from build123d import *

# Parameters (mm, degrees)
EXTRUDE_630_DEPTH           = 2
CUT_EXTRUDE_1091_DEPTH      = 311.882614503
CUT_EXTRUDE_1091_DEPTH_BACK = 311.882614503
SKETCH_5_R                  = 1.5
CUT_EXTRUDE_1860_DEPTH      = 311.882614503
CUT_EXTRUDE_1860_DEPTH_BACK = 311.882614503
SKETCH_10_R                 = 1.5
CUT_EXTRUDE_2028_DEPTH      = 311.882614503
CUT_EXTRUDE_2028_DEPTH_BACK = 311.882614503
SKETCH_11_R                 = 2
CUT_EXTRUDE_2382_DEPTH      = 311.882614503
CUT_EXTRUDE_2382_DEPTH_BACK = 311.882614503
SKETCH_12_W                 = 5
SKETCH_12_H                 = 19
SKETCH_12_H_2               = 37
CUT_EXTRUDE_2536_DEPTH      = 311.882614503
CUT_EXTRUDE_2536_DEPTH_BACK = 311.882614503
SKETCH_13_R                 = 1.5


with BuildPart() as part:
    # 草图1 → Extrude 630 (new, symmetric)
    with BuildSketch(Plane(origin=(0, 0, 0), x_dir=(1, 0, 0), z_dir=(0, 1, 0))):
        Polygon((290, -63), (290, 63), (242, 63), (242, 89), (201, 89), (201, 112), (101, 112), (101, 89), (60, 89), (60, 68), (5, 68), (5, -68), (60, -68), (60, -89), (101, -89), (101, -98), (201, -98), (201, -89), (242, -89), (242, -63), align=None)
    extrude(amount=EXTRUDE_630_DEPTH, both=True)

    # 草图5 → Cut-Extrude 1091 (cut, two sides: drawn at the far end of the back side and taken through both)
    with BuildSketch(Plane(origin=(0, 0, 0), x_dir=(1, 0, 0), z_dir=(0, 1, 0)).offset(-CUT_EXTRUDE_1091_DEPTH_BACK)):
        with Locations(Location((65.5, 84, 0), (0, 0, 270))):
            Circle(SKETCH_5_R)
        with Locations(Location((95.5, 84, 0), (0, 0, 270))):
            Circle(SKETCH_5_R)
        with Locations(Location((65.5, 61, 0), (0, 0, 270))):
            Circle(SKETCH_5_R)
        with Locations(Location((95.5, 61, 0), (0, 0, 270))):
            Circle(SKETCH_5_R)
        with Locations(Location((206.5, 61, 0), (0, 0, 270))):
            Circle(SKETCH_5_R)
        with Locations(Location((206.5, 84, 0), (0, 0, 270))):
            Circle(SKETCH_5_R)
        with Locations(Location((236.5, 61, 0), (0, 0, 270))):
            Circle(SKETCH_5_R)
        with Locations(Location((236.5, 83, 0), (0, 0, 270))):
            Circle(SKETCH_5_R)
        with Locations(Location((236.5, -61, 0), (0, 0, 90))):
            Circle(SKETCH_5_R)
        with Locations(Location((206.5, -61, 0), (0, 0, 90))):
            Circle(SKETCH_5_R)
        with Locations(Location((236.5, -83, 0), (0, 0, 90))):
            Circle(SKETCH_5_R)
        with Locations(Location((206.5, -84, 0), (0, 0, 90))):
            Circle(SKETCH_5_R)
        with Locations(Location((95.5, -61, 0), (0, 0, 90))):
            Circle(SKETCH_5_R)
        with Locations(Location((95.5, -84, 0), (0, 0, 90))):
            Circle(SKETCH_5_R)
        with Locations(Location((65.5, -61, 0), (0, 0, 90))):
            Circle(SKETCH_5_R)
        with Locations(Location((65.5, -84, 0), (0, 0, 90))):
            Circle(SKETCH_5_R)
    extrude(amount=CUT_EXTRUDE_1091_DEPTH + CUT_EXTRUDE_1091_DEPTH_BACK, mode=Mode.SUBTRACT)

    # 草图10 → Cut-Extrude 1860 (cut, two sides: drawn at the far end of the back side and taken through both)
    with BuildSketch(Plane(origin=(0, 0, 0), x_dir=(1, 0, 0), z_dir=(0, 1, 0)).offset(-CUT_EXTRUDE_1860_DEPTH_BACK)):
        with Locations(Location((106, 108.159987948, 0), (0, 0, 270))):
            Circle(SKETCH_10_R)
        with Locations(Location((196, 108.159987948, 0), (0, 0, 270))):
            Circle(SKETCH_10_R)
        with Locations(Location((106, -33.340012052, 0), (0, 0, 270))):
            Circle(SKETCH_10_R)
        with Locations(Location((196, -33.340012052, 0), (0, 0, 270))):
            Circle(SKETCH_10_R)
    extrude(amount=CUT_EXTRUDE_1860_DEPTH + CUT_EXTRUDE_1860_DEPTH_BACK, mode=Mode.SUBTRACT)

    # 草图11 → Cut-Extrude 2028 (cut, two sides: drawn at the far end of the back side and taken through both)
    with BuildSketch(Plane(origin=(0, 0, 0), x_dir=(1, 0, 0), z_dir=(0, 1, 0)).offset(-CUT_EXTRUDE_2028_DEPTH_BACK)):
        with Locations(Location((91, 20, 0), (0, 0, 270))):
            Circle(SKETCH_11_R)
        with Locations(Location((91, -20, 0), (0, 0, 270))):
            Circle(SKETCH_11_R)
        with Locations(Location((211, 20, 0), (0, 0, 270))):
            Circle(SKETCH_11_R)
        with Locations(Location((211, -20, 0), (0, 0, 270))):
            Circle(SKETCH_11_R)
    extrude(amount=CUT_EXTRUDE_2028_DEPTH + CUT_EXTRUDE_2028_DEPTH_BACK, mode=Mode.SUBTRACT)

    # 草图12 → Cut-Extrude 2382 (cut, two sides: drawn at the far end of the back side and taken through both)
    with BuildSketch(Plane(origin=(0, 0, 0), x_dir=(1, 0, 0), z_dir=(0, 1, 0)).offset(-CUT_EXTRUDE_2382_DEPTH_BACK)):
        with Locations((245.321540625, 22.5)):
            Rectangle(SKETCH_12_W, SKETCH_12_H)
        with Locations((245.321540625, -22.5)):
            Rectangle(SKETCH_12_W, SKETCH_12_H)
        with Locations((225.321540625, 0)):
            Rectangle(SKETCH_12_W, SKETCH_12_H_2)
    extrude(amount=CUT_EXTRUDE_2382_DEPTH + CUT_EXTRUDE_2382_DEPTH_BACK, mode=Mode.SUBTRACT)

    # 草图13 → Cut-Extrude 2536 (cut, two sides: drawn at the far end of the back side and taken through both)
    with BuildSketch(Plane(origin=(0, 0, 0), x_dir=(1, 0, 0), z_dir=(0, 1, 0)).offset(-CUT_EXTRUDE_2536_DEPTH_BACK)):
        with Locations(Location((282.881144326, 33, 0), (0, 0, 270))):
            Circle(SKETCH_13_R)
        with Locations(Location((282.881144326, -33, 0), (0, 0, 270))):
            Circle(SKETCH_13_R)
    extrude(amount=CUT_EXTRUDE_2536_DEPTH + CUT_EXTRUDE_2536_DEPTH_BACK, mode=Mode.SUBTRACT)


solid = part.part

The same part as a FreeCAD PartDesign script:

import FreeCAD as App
import Part
import Sketcher
Q = App.Units.Quantity


def add_polygon(sketch, points):
    """Adds a closed chain of lines whose ends are joined by coincident constraints."""
    first, n = sketch.GeometryCount, len(points)
    for a, b in zip(points, points[1:] + points[:1]):
        sketch.addGeometry(Part.LineSegment(App.Vector(*a, 0), App.Vector(*b, 0)), False)
    for i in range(n):
        sketch.addConstraint(Sketcher.Constraint("Coincident", first + i, 2, first + (i + 1) % n, 1))

doc = App.newDocument("Part")
body = doc.addObject("PartDesign::Body", "Body")

# Sketch on XZ plane
sketch1 = body.newObject("Sketcher::SketchObject", "Sketch")
sketch1.AttachmentSupport = (doc.getObject("XZ_Plane"), [""])
sketch1.MapMode = "FlatFace"
add_polygon(sketch1, [(290, 63), (290, -63), (242, -63), (242, -89), (201, -89), (201, -112), (101, -112), (101, -89), (60, -89), (60, -68), (5, -68), (5, 68), (60, 68), (60, 89), (101, 89), (101, 98), (201, 98), (201, 89), (242, 89), (242, 63)])  # lines 0-19
sketch1.addConstraint(Sketcher.Constraint("Vertical", 0))
sketch1.addConstraint(Sketcher.Constraint("Horizontal", 1))
sketch1.addConstraint(Sketcher.Constraint("Vertical", 2))
sketch1.addConstraint(Sketcher.Constraint("Horizontal", 3))
sketch1.addConstraint(Sketcher.Constraint("Vertical", 4))
sketch1.addConstraint(Sketcher.Constraint("Horizontal", 5))
sketch1.addConstraint(Sketcher.Constraint("Vertical", 6))
sketch1.addConstraint(Sketcher.Constraint("Horizontal", 7))
sketch1.addConstraint(Sketcher.Constraint("Vertical", 8))
sketch1.addConstraint(Sketcher.Constraint("Horizontal", 9))
sketch1.addConstraint(Sketcher.Constraint("Vertical", 10))
sketch1.addConstraint(Sketcher.Constraint("Horizontal", 11))
sketch1.addConstraint(Sketcher.Constraint("Vertical", 12))
sketch1.addConstraint(Sketcher.Constraint("Horizontal", 13))
sketch1.addConstraint(Sketcher.Constraint("Vertical", 14))
sketch1.addConstraint(Sketcher.Constraint("Horizontal", 15))
sketch1.addConstraint(Sketcher.Constraint("Vertical", 16))
sketch1.addConstraint(Sketcher.Constraint("Horizontal", 17))
sketch1.addConstraint(Sketcher.Constraint("Vertical", 18))
sketch1.addConstraint(Sketcher.Constraint("Horizontal", 19))
sketch1.addConstraint(Sketcher.Constraint("Symmetric", 8, 2, 11, 2, -1))
sketch1.addConstraint(Sketcher.Constraint("Symmetric", 6, 2, 13, 2, -1))
sketch1.addConstraint(Sketcher.Constraint("Symmetric", 3, 2, 16, 2, -1))
sketch1.addConstraint(Sketcher.Constraint("Symmetric", 1, 2, 18, 2, -1))
sketch1.addConstraint(Sketcher.Constraint("Horizontal", 3, 2, 6, 2))
sketch1.addConstraint(Sketcher.Constraint("Equal", 3, 7))
sketch1.addConstraint(Sketcher.Constraint("DistanceX", 1, 2, 1, 1, Q("48 mm")))
sketch1.addConstraint(Sketcher.Constraint("DistanceX", 3, 2, 3, 1, Q("41 mm")))
sketch1.addConstraint(Sketcher.Constraint("DistanceX", 5, 2, 5, 1, Q("100 mm")))
sketch1.addConstraint(Sketcher.Constraint("DistanceX", 9, 2, 9, 1, Q("55 mm")))
sketch1.addConstraint(Sketcher.Constraint("DistanceY", 0, 2, 0, 1, Q("126 mm")))
sketch1.addConstraint(Sketcher.Constraint("DistanceY", 2, 2, 2, 1, Q("26 mm")))
sketch1.addConstraint(Sketcher.Constraint("DistanceY", 4, 2, 4, 1, Q("23 mm")))
sketch1.addConstraint(Sketcher.Constraint("DistanceY", 8, 1, 8, 2, Q("21 mm")))
sketch1.addConstraint(Sketcher.Constraint("DistanceY", 14, 1, 14, 2, Q("9 mm")))
sketch1.addConstraint(Sketcher.Constraint("DistanceX", -1, 1, 0, 2, Q("290 mm")))
pad1 = body.newObject("PartDesign::Pad", "Pad")
pad1.Profile = sketch1
pad1.Length = 4
pad1.Midplane = True

# Sketch on XZ plane
sketch2 = body.newObject("Sketcher::SketchObject", "Sketch001")
sketch2.AttachmentSupport = (doc.getObject("XZ_Plane"), [""])
sketch2.MapMode = "FlatFace"
sketch2.addGeometry(Part.Circle(App.Vector(65.5, -84, 0), App.Vector(0, 0, 1), 1.5), False)
sketch2.addGeometry(Part.Circle(App.Vector(95.5, -84, 0), App.Vector(0, 0, 1), 1.5), False)
sketch2.addGeometry(Part.Circle(App.Vector(65.5, -61, 0), App.Vector(0, 0, 1), 1.5), False)
sketch2.addGeometry(Part.Circle(App.Vector(95.5, -61, 0), App.Vector(0, 0, 1), 1.5), False)
sketch2.addGeometry(Part.Circle(App.Vector(206.5, -61, 0), App.Vector(0, 0, 1), 1.5), False)
sketch2.addGeometry(Part.Circle(App.Vector(206.5, -84, 0), App.Vector(0, 0, 1), 1.5), False)
sketch2.addGeometry(Part.Circle(App.Vector(236.5, -61, 0), App.Vector(0, 0, 1), 1.5), False)
sketch2.addGeometry(Part.Circle(App.Vector(236.5, -83, 0), App.Vector(0, 0, 1), 1.5), False)
sketch2.addGeometry(Part.Circle(App.Vector(236.5, 61, 0), App.Vector(0, 0, 1), 1.5), False)
sketch2.addGeometry(Part.Circle(App.Vector(206.5, 61, 0), App.Vector(0, 0, 1), 1.5), False)
sketch2.addGeometry(Part.Circle(App.Vector(236.5, 83, 0), App.Vector(0, 0, 1), 1.5), False)
sketch2.addGeometry(Part.Circle(App.Vector(206.5, 84, 0), App.Vector(0, 0, 1), 1.5), False)
sketch2.addGeometry(Part.Circle(App.Vector(95.5, 61, 0), App.Vector(0, 0, 1), 1.5), False)
sketch2.addGeometry(Part.Circle(App.Vector(95.5, 84, 0), App.Vector(0, 0, 1), 1.5), False)
sketch2.addGeometry(Part.Circle(App.Vector(65.5, 61, 0), App.Vector(0, 0, 1), 1.5), False)
sketch2.addGeometry(Part.Circle(App.Vector(65.5, 84, 0), App.Vector(0, 0, 1), 1.5), False)
sketch2.addConstraint(Sketcher.Constraint("Equal", 0, 1))
sketch2.addConstraint(Sketcher.Constraint("Equal", 1, 2))
sketch2.addConstraint(Sketcher.Constraint("Equal", 2, 3))
sketch2.addConstraint(Sketcher.Constraint("Equal", 3, 4))
sketch2.addConstraint(Sketcher.Constraint("Equal", 4, 5))
sketch2.addConstraint(Sketcher.Constraint("Equal", 5, 6))
sketch2.addConstraint(Sketcher.Constraint("Equal", 6, 7))
sketch2.addConstraint(Sketcher.Constraint("Equal", 7, 8))
sketch2.addConstraint(Sketcher.Constraint("Equal", 8, 9))
sketch2.addConstraint(Sketcher.Constraint("Equal", 9, 10))
sketch2.addConstraint(Sketcher.Constraint("Equal", 10, 11))
sketch2.addConstraint(Sketcher.Constraint("Equal", 11, 12))
sketch2.addConstraint(Sketcher.Constraint("Equal", 12, 13))
sketch2.addConstraint(Sketcher.Constraint("Equal", 13, 14))
sketch2.addConstraint(Sketcher.Constraint("Equal", 14, 15))
sketch2.addConstraint(Sketcher.Constraint("Symmetric", 6, 3, 8, 3, -1))
sketch2.addConstraint(Sketcher.Constraint("Symmetric", 4, 3, 9, 3, -1))
sketch2.addConstraint(Sketcher.Constraint("Symmetric", 7, 3, 10, 3, -1))
sketch2.addConstraint(Sketcher.Constraint("Symmetric", 5, 3, 11, 3, -1))
sketch2.addConstraint(Sketcher.Constraint("Symmetric", 3, 3, 12, 3, -1))
sketch2.addConstraint(Sketcher.Constraint("Symmetric", 1, 3, 13, 3, -1))
sketch2.addConstraint(Sketcher.Constraint("Symmetric", 2, 3, 14, 3, -1))
sketch2.addConstraint(Sketcher.Constraint("Symmetric", 0, 3, 15, 3, -1))
sketch2.addConstraint(Sketcher.Constraint("Horizontal", 0, 3, 1, 3))
sketch2.addConstraint(Sketcher.Constraint("Horizontal", 2, 3, 3, 3))
sketch2.addConstraint(Sketcher.Constraint("Horizontal", 3, 3, 4, 3))
sketch2.addConstraint(Sketcher.Constraint("Horizontal", 1, 3, 5, 3))
sketch2.addConstraint(Sketcher.Constraint("Horizontal", 4, 3, 6, 3))
sketch2.addConstraint(Sketcher.Constraint("Vertical", 0, 3, 2, 3))
sketch2.addConstraint(Sketcher.Constraint("Vertical", 1, 3, 3, 3))
sketch2.addConstraint(Sketcher.Constraint("Vertical", 4, 3, 5, 3))
sketch2.addConstraint(Sketcher.Constraint("Vertical", 6, 3, 7, 3))
sketch2.addConstraint(Sketcher.Constraint("Diameter", 0, Q("3 mm")))
sketch2.addConstraint(Sketcher.Constraint("DistanceY", 0, 3, -1, 1, Q("84 mm")))
sketch2.addConstraint(Sketcher.Constraint("DistanceY", 2, 3, -1, 1, Q("61 mm")))
sketch2.addConstraint(Sketcher.Constraint("DistanceY", 7, 3, -1, 1, Q("83 mm")))
sketch2.addConstraint(Sketcher.Constraint("DistanceX", 0, 3, 1, 3, Q("30 mm")))
sketch2.addConstraint(Sketcher.Constraint("DistanceX", 3, 3, 4, 3, Q("111 mm")))
sketch2.addConstraint(Sketcher.Constraint("DistanceX", 4, 3, 6, 3, Q("30 mm")))
sketch2.addConstraint(Sketcher.Constraint("DistanceX", -1, 1, 0, 3, Q("65.5 mm")))
pocket1 = body.newObject("PartDesign::Pocket", "Pocket")
pocket1.Profile = sketch2
pocket1.Type = "ThroughAll"
pocket1.Midplane = True

# Sketch on XZ plane
sketch3 = body.newObject("Sketcher::SketchObject", "Sketch002")
sketch3.AttachmentSupport = (doc.getObject("XZ_Plane"), [""])
sketch3.MapMode = "FlatFace"
sketch3.addGeometry(Part.Circle(App.Vector(106, -108.2, 0), App.Vector(0, 0, 1), 1.5), False)
sketch3.addGeometry(Part.Circle(App.Vector(196, -108.2, 0), App.Vector(0, 0, 1), 1.5), False)
sketch3.addGeometry(Part.Circle(App.Vector(106, 33.3, 0), App.Vector(0, 0, 1), 1.5), False)
sketch3.addGeometry(Part.Circle(App.Vector(196, 33.3, 0), App.Vector(0, 0, 1), 1.5), False)
sketch3.addConstraint(Sketcher.Constraint("Equal", 0, 1))
sketch3.addConstraint(Sketcher.Constraint("Equal", 1, 2))
sketch3.addConstraint(Sketcher.Constraint("Equal", 2, 3))
sketch3.addConstraint(Sketcher.Constraint("Horizontal", 0, 3, 1, 3))
sketch3.addConstraint(Sketcher.Constraint("Horizontal", 2, 3, 3, 3))
sketch3.addConstraint(Sketcher.Constraint("Vertical", 0, 3, 2, 3))
sketch3.addConstraint(Sketcher.Constraint("Vertical", 1, 3, 3, 3))
sketch3.addConstraint(Sketcher.Constraint("Diameter", 0, Q("3 mm")))
sketch3.addConstraint(Sketcher.Constraint("DistanceX", -1, 1, 0, 3, Q("106 mm")))
sketch3.addConstraint(Sketcher.Constraint("DistanceX", -1, 1, 1, 3, Q("196 mm")))
sketch3.addConstraint(Sketcher.Constraint("DistanceY", 0, 3, 2, 3, Q("141.5 mm")))
sketch3.addConstraint(Sketcher.Constraint("DistanceY", 0, 3, -1, 1, Q("108.159988 mm")))
pocket2 = body.newObject("PartDesign::Pocket", "Pocket001")
pocket2.Profile = sketch3
pocket2.Type = "ThroughAll"
pocket2.Midplane = True

# Sketch on XZ plane
sketch4 = body.newObject("Sketcher::SketchObject", "Sketch003")
sketch4.AttachmentSupport = (doc.getObject("XZ_Plane"), [""])
sketch4.MapMode = "FlatFace"
sketch4.addGeometry(Part.Circle(App.Vector(91, -20, 0), App.Vector(0, 0, 1), 2), False)
sketch4.addGeometry(Part.Circle(App.Vector(91, 20, 0), App.Vector(0, 0, 1), 2), False)
sketch4.addGeometry(Part.Circle(App.Vector(211, -20, 0), App.Vector(0, 0, 1), 2), False)
sketch4.addGeometry(Part.Circle(App.Vector(211, 20, 0), App.Vector(0, 0, 1), 2), False)
sketch4.addConstraint(Sketcher.Constraint("Equal", 0, 1))
sketch4.addConstraint(Sketcher.Constraint("Equal", 1, 2))
sketch4.addConstraint(Sketcher.Constraint("Equal", 2, 3))
sketch4.addConstraint(Sketcher.Constraint("Symmetric", 0, 3, 1, 3, -1))
sketch4.addConstraint(Sketcher.Constraint("Symmetric", 2, 3, 3, 3, -1))
sketch4.addConstraint(Sketcher.Constraint("Horizontal", 0, 3, 2, 3))
sketch4.addConstraint(Sketcher.Constraint("Diameter", 0, Q("4 mm")))
sketch4.addConstraint(Sketcher.Constraint("DistanceX", -1, 1, 0, 3, Q("91 mm")))
sketch4.addConstraint(Sketcher.Constraint("DistanceY", 0, 3, -1, 1, Q("20 mm")))
sketch4.addConstraint(Sketcher.Constraint("DistanceX", -1, 1, 2, 3, Q("211 mm")))
pocket3 = body.newObject("PartDesign::Pocket", "Pocket002")
pocket3.Profile = sketch4
pocket3.Type = "ThroughAll"
pocket3.Midplane = True

# Sketch on XZ plane
sketch5 = body.newObject("Sketcher::SketchObject", "Sketch004")
sketch5.AttachmentSupport = (doc.getObject("XZ_Plane"), [""])
sketch5.MapMode = "FlatFace"
add_polygon(sketch5, [(243, -32), (243, -13), (248, -13), (248, -32)])  # lines 0-3
add_polygon(sketch5, [(243, 13), (243, 32), (248, 32), (248, 13)])  # lines 4-7
add_polygon(sketch5, [(223, -18), (223, 18), (228, 18), (228, -18)])  # lines 8-11
sketch5.addConstraint(Sketcher.Constraint("Vertical", 0))
sketch5.addConstraint(Sketcher.Constraint("Horizontal", 1))
sketch5.addConstraint(Sketcher.Constraint("Vertical", 2))
sketch5.addConstraint(Sketcher.Constraint("Horizontal", 3))
sketch5.addConstraint(Sketcher.Constraint("Vertical", 4))
sketch5.addConstraint(Sketcher.Constraint("Horizontal", 5))
sketch5.addConstraint(Sketcher.Constraint("Vertical", 6))
sketch5.addConstraint(Sketcher.Constraint("Horizontal", 7))
sketch5.addConstraint(Sketcher.Constraint("Vertical", 8))
sketch5.addConstraint(Sketcher.Constraint("Horizontal", 9))
sketch5.addConstraint(Sketcher.Constraint("Vertical", 10))
sketch5.addConstraint(Sketcher.Constraint("Horizontal", 11))
sketch5.addConstraint(Sketcher.Constraint("Symmetric", 3, 2, 4, 2, -1))
sketch5.addConstraint(Sketcher.Constraint("Symmetric", 1, 2, 6, 2, -1))
sketch5.addConstraint(Sketcher.Constraint("Equal", 7, 9))
sketch5.addConstraint(Sketcher.Constraint("DistanceX", 1, 1, 1, 2, Q("5 mm")))
sketch5.addConstraint(Sketcher.Constraint("DistanceY", 0, 1, 0, 2, Q("19 mm")))
sketch5.addConstraint(Sketcher.Constraint("DistanceY", 8, 1, 8, 2, Q("37 mm")))
sketch5.addConstraint(Sketcher.Constraint("DistanceY", 0, 2, -1, 1, Q("13 mm")))
sketch5.addConstraint(Sketcher.Constraint("DistanceX", 8, 2, 7, 2, Q("20 mm")))
sketch5.addConstraint(Sketcher.Constraint("DistanceY", -1, 1, 8, 2, Q("18.5 mm")))
sketch5.addConstraint(Sketcher.Constraint("DistanceX", -1, 1, 0, 2, Q("242.821541 mm")))
pocket4 = body.newObject("PartDesign::Pocket", "Pocket003")
pocket4.Profile = sketch5
pocket4.Type = "ThroughAll"
pocket4.Midplane = True

# Sketch on XZ plane
sketch6 = body.newObject("Sketcher::SketchObject", "Sketch005")
sketch6.AttachmentSupport = (doc.getObject("XZ_Plane"), [""])
sketch6.MapMode = "FlatFace"
sketch6.addGeometry(Part.Circle(App.Vector(282.9, -33, 0), App.Vector(0, 0, 1), 1.5), False)
sketch6.addGeometry(Part.Circle(App.Vector(282.9, 33, 0), App.Vector(0, 0, 1), 1.5), False)
sketch6.addConstraint(Sketcher.Constraint("Equal", 0, 1))
sketch6.addConstraint(Sketcher.Constraint("Symmetric", 0, 3, 1, 3, -1))
sketch6.addConstraint(Sketcher.Constraint("Diameter", 0, Q("3 mm")))
sketch6.addConstraint(Sketcher.Constraint("DistanceY", 0, 3, -1, 1, Q("33 mm")))
sketch6.addConstraint(Sketcher.Constraint("DistanceX", -1, 1, 0, 3, Q("282.881144 mm")))
pocket5 = body.newObject("PartDesign::Pocket", "Pocket004")
pocket5.Profile = sketch6
pocket5.Type = "ThroughAll"
pocket5.Midplane = True

doc.recompute()
